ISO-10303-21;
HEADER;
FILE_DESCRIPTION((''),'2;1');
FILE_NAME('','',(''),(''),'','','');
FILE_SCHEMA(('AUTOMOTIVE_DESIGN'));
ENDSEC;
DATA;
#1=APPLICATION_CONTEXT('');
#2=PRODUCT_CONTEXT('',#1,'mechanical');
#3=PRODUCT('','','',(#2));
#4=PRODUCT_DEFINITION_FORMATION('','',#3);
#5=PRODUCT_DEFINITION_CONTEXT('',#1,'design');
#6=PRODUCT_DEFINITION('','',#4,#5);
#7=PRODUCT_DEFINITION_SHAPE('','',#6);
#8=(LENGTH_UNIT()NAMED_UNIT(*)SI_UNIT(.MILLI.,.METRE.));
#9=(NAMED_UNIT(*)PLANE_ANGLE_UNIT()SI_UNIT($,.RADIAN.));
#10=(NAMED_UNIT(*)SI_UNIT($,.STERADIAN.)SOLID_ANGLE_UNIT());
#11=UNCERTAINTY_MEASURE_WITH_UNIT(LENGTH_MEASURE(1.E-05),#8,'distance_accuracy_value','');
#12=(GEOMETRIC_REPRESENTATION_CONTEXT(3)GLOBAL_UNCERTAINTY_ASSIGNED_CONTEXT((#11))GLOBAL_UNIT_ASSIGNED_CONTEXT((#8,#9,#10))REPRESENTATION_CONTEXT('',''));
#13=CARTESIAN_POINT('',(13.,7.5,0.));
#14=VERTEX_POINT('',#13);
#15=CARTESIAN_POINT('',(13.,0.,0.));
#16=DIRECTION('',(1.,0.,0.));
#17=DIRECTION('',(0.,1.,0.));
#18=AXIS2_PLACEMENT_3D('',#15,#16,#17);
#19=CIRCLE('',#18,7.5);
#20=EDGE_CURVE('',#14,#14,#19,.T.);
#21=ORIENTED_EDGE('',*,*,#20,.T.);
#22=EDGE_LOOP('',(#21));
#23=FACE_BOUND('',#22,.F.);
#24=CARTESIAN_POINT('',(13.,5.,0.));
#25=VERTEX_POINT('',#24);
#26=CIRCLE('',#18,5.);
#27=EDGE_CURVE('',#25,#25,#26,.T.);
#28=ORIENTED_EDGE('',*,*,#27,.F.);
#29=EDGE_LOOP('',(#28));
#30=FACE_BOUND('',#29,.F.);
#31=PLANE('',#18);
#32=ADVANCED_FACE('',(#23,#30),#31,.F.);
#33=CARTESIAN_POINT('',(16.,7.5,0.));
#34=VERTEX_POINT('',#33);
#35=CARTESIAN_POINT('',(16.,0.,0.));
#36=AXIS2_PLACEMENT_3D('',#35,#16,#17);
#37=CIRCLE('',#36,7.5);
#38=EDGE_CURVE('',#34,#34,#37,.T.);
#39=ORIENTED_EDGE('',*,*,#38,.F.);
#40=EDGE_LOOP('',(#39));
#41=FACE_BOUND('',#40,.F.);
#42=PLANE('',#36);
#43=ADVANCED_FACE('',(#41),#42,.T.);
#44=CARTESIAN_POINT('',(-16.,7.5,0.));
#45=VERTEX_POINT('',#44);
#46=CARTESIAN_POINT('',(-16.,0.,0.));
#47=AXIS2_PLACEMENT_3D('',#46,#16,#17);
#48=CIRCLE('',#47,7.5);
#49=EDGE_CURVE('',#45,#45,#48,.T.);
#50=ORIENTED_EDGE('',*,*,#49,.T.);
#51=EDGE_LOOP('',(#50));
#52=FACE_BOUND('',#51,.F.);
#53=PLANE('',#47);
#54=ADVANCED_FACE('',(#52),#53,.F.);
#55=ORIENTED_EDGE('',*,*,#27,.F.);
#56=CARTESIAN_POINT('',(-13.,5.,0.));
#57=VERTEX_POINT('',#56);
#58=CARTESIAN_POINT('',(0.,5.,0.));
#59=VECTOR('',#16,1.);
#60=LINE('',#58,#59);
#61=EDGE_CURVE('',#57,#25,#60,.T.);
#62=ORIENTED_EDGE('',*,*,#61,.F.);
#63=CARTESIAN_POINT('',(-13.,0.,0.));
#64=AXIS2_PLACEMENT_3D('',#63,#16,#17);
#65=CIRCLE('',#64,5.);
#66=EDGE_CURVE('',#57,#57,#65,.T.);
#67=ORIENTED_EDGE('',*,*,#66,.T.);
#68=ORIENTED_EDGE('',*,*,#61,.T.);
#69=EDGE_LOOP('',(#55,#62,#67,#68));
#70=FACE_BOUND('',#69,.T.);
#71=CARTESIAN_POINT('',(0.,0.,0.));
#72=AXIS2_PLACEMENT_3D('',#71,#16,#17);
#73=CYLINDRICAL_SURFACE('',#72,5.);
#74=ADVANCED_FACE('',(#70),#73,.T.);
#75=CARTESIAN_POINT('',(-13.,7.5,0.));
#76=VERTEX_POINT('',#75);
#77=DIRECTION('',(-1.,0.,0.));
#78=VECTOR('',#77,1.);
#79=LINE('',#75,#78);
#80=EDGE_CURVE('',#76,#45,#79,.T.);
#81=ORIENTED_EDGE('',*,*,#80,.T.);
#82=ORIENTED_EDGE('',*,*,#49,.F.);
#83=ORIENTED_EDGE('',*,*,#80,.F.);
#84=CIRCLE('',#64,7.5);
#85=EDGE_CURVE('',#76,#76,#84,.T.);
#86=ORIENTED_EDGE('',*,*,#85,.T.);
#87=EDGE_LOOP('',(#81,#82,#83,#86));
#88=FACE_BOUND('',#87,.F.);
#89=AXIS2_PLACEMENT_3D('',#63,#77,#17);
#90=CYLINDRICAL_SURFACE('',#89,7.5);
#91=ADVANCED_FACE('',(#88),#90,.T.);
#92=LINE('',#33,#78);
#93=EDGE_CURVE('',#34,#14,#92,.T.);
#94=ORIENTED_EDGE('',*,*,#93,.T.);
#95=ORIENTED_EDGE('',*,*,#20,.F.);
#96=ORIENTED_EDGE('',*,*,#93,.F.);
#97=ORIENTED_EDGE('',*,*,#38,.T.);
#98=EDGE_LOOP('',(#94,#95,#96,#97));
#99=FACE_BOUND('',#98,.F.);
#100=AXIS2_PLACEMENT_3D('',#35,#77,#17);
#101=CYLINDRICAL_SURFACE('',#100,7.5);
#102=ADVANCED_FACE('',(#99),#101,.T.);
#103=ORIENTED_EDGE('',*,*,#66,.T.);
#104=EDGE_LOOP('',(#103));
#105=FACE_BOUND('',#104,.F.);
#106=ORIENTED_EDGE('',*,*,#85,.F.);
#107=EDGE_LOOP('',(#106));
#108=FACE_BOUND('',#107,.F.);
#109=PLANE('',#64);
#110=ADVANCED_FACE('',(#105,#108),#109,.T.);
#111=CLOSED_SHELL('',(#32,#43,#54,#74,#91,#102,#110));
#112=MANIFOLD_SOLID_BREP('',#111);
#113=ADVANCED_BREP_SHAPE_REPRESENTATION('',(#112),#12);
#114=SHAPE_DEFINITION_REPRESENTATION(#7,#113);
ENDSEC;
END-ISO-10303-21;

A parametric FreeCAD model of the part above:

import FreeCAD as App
import Part
import Sketcher
from FreeCAD import Vector


def add_polygon(sketch, points):
    """Adds a closed chain of lines whose ends are joined by coincident constraints."""
    first, n = sketch.GeometryCount, len(points)
    for a, b in zip(points, points[1:] + points[:1]):
        sketch.addGeometry(Part.LineSegment(App.Vector(*a, 0), App.Vector(*b, 0)), False)
    for i in range(n):
        sketch.addConstraint(Sketcher.Constraint("Coincident", first + i, 2, first + (i + 1) % n, 1))

doc = App.newDocument("Part")
body = doc.addObject("PartDesign::Body", "Body")

sketch1 = body.newObject("Sketcher::SketchObject", "Sketch")
sketch1.AttachmentSupport = (doc.getObject("XY_Plane"), [""])
sketch1.MapMode = "FlatFace"
add_polygon(sketch1, [(-13, 5), (-13, 7.5), (-16, 7.5), (-16, 0), (16, 0), (16, 7.5), (13, 7.5), (13, 5)])
sketch1.addConstraint(Sketcher.Constraint("Vertical", 0))
sketch1.addConstraint(Sketcher.Constraint("Horizontal", 1))
sketch1.addConstraint(Sketcher.Constraint("Vertical", 2))
sketch1.addConstraint(Sketcher.Constraint("Horizontal", 3))
sketch1.addConstraint(Sketcher.Constraint("Vertical", 4))
sketch1.addConstraint(Sketcher.Constraint("Horizontal", 5))
sketch1.addConstraint(Sketcher.Constraint("Vertical", 6))
sketch1.addConstraint(Sketcher.Constraint("Horizontal", 7))
sketch1.addConstraint(Sketcher.Constraint("Symmetric", 2, 2, 3, 2, -1, 1))
sketch1.addConstraint(Sketcher.Constraint("Symmetric", 0, 2, 5, 2, -2))
sketch1.addConstraint(Sketcher.Constraint("DistanceX", 1, 2, 1, 1, 3.0))
sketch1.addConstraint(Sketcher.Constraint("DistanceX", 3, 1, 3, 2, 32.0))
sketch1.addConstraint(Sketcher.Constraint("DistanceY", 0, 1, 0, 2, 2.5))
sketch1.addConstraint(Sketcher.Constraint("DistanceY", 2, 2, 2, 1, 7.5))
revolution = body.newObject("PartDesign::Revolution", "Revolution")
revolution.Profile = sketch1
revolution.ReferenceAxis = (sketch1, ["H_Axis"])
revolution.Angle = 360

doc.recompute()
